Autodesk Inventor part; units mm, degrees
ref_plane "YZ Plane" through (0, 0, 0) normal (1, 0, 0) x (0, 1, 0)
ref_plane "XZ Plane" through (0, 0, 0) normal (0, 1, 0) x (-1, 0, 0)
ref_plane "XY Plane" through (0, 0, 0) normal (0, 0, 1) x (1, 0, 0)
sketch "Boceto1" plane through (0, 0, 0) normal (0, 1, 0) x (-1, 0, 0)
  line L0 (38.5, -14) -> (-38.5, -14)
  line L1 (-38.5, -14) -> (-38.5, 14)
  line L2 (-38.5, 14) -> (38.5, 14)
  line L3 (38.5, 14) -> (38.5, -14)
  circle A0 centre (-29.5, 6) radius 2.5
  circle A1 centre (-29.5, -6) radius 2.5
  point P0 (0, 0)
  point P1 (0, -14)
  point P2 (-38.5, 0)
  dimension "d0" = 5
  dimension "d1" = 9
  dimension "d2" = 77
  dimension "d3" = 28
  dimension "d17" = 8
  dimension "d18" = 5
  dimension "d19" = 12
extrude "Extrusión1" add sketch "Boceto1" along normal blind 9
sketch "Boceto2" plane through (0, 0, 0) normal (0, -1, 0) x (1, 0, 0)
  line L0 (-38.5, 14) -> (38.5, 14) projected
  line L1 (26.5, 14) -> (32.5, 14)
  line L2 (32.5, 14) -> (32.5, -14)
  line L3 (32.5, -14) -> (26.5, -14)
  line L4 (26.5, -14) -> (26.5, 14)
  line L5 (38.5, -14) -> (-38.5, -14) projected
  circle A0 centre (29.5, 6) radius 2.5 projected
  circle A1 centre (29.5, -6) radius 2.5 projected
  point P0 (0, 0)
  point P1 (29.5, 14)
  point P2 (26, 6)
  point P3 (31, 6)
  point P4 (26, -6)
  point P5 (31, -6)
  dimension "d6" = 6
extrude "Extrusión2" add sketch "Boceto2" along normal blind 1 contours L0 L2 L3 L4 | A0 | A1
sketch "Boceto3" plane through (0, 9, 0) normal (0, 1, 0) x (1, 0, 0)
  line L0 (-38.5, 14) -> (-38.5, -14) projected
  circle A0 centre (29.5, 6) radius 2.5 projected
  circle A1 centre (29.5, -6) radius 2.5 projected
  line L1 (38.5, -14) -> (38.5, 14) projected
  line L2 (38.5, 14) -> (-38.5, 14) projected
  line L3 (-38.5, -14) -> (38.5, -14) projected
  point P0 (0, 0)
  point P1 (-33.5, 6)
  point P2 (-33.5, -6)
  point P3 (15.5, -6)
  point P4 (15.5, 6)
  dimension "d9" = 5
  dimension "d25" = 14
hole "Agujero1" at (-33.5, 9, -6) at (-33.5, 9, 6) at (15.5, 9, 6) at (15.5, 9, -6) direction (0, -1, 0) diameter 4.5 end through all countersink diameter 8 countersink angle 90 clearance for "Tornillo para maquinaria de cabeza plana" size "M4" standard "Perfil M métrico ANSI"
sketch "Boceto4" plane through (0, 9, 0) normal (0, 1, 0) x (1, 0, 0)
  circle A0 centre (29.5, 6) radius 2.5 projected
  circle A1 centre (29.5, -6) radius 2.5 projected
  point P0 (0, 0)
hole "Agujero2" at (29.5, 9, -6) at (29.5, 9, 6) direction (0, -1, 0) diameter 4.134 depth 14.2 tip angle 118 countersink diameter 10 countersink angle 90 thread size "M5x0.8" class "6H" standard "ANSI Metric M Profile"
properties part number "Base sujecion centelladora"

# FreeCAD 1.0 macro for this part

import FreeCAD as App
import Part
import Sketcher
Q = App.Units.Quantity


def add_polygon(sketch, points):
    """Adds a closed chain of lines whose ends are joined by coincident constraints."""
    first, n = sketch.GeometryCount, len(points)
    for a, b in zip(points, points[1:] + points[:1]):
        sketch.addGeometry(Part.LineSegment(App.Vector(*a, 0), App.Vector(*b, 0)), False)
    for i in range(n):
        sketch.addConstraint(Sketcher.Constraint("Coincident", first + i, 2, first + (i + 1) % n, 1))

doc = App.newDocument("Part")
body = doc.addObject("PartDesign::Body", "Body")

# Sketch on XZ plane
sketch1 = body.newObject("Sketcher::SketchObject", "Sketch")
sketch1.AttachmentSupport = (doc.getObject("XZ_Plane"), [""])
sketch1.MapMode = "FlatFace"
add_polygon(sketch1, [(38.5, -14), (-38.5, -14), (-38.5, 14), (38.5, 14)])  # lines 0-3
sketch1.addGeometry(Part.Circle(App.Vector(29.5, -6, 0), App.Vector(0, 0, 1), 2.5), False)  # 4
sketch1.addGeometry(Part.Circle(App.Vector(29.5, 6, 0), App.Vector(0, 0, 1), 2.5), False)  # 5
sketch1.addConstraint(Sketcher.Constraint("Horizontal", 0))
sketch1.addConstraint(Sketcher.Constraint("Vertical", 1))
sketch1.addConstraint(Sketcher.Constraint("Horizontal", 2))
sketch1.addConstraint(Sketcher.Constraint("Vertical", 3))
sketch1.addConstraint(Sketcher.Constraint("Equal", 4, 5))
sketch1.addConstraint(Sketcher.Constraint("Symmetric", 0, 2, 2, 2, -1, 1))
sketch1.addConstraint(Sketcher.Constraint("Symmetric", 4, 3, 5, 3, -1))
sketch1.addConstraint(Sketcher.Constraint("Diameter", 4, Q("5 mm")))
sketch1.addConstraint(Sketcher.Constraint("DistanceX", 0, 2, 0, 1, Q("77 mm")))
sketch1.addConstraint(Sketcher.Constraint("DistanceY", 1, 1, 1, 2, Q("28 mm")))
sketch1.addConstraint(Sketcher.Constraint("DistanceY", 4, 3, 5, 3, Q("12 mm")))
sketch1.addConstraint(Sketcher.Constraint("DistanceX", 5, 3, 2, 2, Q("9 mm")))
pad1 = body.newObject("PartDesign::Pad", "Pad")
pad1.Profile = sketch1
pad1.Length = 9
pad1.Reversed = True

# Sketch on XZ plane
sketch2 = body.newObject("Sketcher::SketchObject", "Sketch001")
sketch2.AttachmentSupport = (doc.getObject("XZ_Plane"), [""])
sketch2.MapMode = "FlatFace"
add_polygon(sketch2, [(32, 14), (26, 14), (26, -14), (32, -14)])  # lines 0-3
sketch2.addConstraint(Sketcher.Constraint("Horizontal", 0))
sketch2.addConstraint(Sketcher.Constraint("Vertical", 1))
sketch2.addConstraint(Sketcher.Constraint("Horizontal", 2))
sketch2.addConstraint(Sketcher.Constraint("Vertical", 3))
sketch2.addConstraint(Sketcher.Constraint("DistanceX", 0, 2, 0, 1, Q("6 mm")))
sketch2.addConstraint(Sketcher.Constraint("DistanceY", 1, 2, 1, 1, Q("28 mm")))
sketch2.addConstraint(Sketcher.Constraint("DistanceY", -1, 1, 0, 2, Q("14 mm")))
sketch2.addConstraint(Sketcher.Constraint("DistanceX", -1, 1, 0, 2, Q("26.5 mm")))
pad2 = body.newObject("PartDesign::Pad", "Pad001")
pad2.Profile = sketch2
pad2.Length = 1

# Sketch on XZ plane
sketch3 = body.newObject("Sketcher::SketchObject", "Sketch002")
sketch3.AttachmentSupport = (doc.getObject("XZ_Plane"), [""])
sketch3.MapMode = "FlatFace"
sketch3.AttachmentOffset = App.Placement(App.Vector(0, 0, -9), App.Rotation())
sketch3.addGeometry(Part.Circle(App.Vector(-33.5, -6, 0), App.Vector(0, 0, 1), 2.2), False)
sketch3.addGeometry(Part.Circle(App.Vector(-33.5, 6, 0), App.Vector(0, 0, 1), 2.2), False)
sketch3.addGeometry(Part.Circle(App.Vector(15.5, 6, 0), App.Vector(0, 0, 1), 2.2), False)
sketch3.addGeometry(Part.Circle(App.Vector(15.5, -6, 0), App.Vector(0, 0, 1), 2.2), False)
sketch3.addConstraint(Sketcher.Constraint("Equal", 0, 1))
sketch3.addConstraint(Sketcher.Constraint("Equal", 1, 2))
sketch3.addConstraint(Sketcher.Constraint("Equal", 2, 3))
sketch3.addConstraint(Sketcher.Constraint("Symmetric", 0, 3, 1, 3, -1))
sketch3.addConstraint(Sketcher.Constraint("Symmetric", 2, 3, 3, 3, -1))
sketch3.addConstraint(Sketcher.Constraint("Horizontal", 1, 3, 2, 3))
sketch3.addConstraint(Sketcher.Constraint("Diameter", 0, Q("4.5 mm")))
sketch3.addConstraint(Sketcher.Constraint("DistanceY", 0, 3, -1, 1, Q("6 mm")))
sketch3.addConstraint(Sketcher.Constraint("DistanceX", 1, 3, 2, 3, Q("49 mm")))
sketch3.addConstraint(Sketcher.Constraint("DistanceX", 0, 3, -1, 1, Q("33.5 mm")))
doc.recompute()
hole = body.newObject("PartDesign::Hole", "Hole")
hole.Profile = sketch3
hole.ThreadType = "None"
hole.Diameter = 4.5
hole.DepthType = "ThroughAll"
hole.HoleCutType = "Countersink"
hole.HoleCutDiameter = 8
hole.HoleCutCountersinkAngle = 90
hole.Reversed = True

# Sketch on XZ plane
sketch4 = body.newObject("Sketcher::SketchObject", "Sketch003")
sketch4.AttachmentSupport = (doc.getObject("XZ_Plane"), [""])
sketch4.MapMode = "FlatFace"
sketch4.AttachmentOffset = App.Placement(App.Vector(0, 0, -9), App.Rotation())
sketch4.addGeometry(Part.Circle(App.Vector(29.5, -6, 0), App.Vector(0, 0, 1), 2.1), False)
sketch4.addGeometry(Part.Circle(App.Vector(29.5, 6, 0), App.Vector(0, 0, 1), 2.1), False)
sketch4.addConstraint(Sketcher.Constraint("Equal", 0, 1))
sketch4.addConstraint(Sketcher.Constraint("Symmetric", 0, 3, 1, 3, -1))
sketch4.addConstraint(Sketcher.Constraint("Diameter", 0, Q("4.134 mm")))
sketch4.addConstraint(Sketcher.Constraint("DistanceY", 0, 3, -1, 1, Q("6 mm")))
sketch4.addConstraint(Sketcher.Constraint("DistanceX", -1, 1, 0, 3, Q("29.5 mm")))
doc.recompute()
hole2 = body.newObject("PartDesign::Hole", "Hole001")
hole2.Profile = sketch4
hole2.ThreadType = "None"
hole2.Diameter = 4.134
hole2.DepthType = "Dimension"
hole2.Depth = 14.2
hole2.DrillPoint = "Angled"
hole2.DrillPointAngle = 118
hole2.HoleCutType = "Countersink"
hole2.HoleCutDiameter = 10
hole2.HoleCutCountersinkAngle = 90
hole2.Reversed = True

doc.recompute()
